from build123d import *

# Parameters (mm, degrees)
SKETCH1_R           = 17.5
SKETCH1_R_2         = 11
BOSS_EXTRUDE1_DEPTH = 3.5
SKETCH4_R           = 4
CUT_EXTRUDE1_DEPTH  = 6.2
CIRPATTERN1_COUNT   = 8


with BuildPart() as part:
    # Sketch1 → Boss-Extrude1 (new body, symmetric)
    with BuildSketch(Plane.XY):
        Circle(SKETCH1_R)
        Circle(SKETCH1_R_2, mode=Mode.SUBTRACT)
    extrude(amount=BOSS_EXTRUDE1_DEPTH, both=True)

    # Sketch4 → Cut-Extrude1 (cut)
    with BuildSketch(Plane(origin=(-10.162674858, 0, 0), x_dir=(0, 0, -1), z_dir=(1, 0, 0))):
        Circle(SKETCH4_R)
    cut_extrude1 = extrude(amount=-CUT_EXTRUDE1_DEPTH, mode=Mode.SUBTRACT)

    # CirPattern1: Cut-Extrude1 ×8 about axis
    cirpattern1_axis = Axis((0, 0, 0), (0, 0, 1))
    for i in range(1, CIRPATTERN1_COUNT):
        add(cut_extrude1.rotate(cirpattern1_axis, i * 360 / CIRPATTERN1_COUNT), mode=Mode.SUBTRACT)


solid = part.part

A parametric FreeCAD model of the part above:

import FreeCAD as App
import Part
import Sketcher
Q = App.Units.Quantity

doc = App.newDocument("Part")
body = doc.addObject("PartDesign::Body", "Body")

sketch1 = doc.addObject("Sketcher::SketchObject", "Sketch")
body.addObject(sketch1)
sketch1.AttachmentSupport = (doc.XY_Plane, [""])
sketch1.MapMode = "FlatFace"
sketch1.addGeometry(Part.Circle(App.Vector(0, 0, 0), App.Vector(0, 0, 1), 18), False)
sketch1.addGeometry(Part.Circle(App.Vector(0, 0, 0), App.Vector(0, 0, 1), 11), False)
sketch1.addConstraint(Sketcher.Constraint("Coincident", 0, 3, -1, 1))
sketch1.addConstraint(Sketcher.Constraint("Coincident", 1, 3, -1, 1))
sketch1.addConstraint(Sketcher.Constraint("Diameter", 0, Q("35 mm")))
sketch1.addConstraint(Sketcher.Constraint("Diameter", 1, Q("22 mm")))
pad1 = doc.addObject("PartDesign::Pad", "Pad")
body.addObject(pad1)
pad1.Profile = sketch1
pad1.Length = 7
pad1.Midplane = True

sketch2 = doc.addObject("Sketcher::SketchObject", "Sketch001")
body.addObject(sketch2)
sketch2.AttachmentSupport = (doc.YZ_Plane, [""])
sketch2.MapMode = "FlatFace"
sketch2.AttachmentOffset = App.Placement(App.Vector(0, 0, -10.162675), App.Rotation())
sketch2.addGeometry(Part.Circle(App.Vector(0, 0, 0), App.Vector(0, 0, 1), 4), False)
sketch2.addConstraint(Sketcher.Constraint("Coincident", 0, 3, -1, 1))
sketch2.addConstraint(Sketcher.Constraint("Diameter", 0, Q("8 mm")))
pocket1 = doc.addObject("PartDesign::Pocket", "Pocket")
body.addObject(pocket1)
pocket1.Profile = sketch2
pocket1.Length = 6.2
doc.recompute()

polarpattern = doc.addObject("PartDesign::PolarPattern", "PolarPattern")
body.addObject(polarpattern)
polarpattern.Originals = [pocket1]
polarpattern.Axis = (doc.Z_Axis, [""])
polarpattern.Angle = 360
polarpattern.Occurrences = 8
body.Tip = polarpattern

doc.recompute()
